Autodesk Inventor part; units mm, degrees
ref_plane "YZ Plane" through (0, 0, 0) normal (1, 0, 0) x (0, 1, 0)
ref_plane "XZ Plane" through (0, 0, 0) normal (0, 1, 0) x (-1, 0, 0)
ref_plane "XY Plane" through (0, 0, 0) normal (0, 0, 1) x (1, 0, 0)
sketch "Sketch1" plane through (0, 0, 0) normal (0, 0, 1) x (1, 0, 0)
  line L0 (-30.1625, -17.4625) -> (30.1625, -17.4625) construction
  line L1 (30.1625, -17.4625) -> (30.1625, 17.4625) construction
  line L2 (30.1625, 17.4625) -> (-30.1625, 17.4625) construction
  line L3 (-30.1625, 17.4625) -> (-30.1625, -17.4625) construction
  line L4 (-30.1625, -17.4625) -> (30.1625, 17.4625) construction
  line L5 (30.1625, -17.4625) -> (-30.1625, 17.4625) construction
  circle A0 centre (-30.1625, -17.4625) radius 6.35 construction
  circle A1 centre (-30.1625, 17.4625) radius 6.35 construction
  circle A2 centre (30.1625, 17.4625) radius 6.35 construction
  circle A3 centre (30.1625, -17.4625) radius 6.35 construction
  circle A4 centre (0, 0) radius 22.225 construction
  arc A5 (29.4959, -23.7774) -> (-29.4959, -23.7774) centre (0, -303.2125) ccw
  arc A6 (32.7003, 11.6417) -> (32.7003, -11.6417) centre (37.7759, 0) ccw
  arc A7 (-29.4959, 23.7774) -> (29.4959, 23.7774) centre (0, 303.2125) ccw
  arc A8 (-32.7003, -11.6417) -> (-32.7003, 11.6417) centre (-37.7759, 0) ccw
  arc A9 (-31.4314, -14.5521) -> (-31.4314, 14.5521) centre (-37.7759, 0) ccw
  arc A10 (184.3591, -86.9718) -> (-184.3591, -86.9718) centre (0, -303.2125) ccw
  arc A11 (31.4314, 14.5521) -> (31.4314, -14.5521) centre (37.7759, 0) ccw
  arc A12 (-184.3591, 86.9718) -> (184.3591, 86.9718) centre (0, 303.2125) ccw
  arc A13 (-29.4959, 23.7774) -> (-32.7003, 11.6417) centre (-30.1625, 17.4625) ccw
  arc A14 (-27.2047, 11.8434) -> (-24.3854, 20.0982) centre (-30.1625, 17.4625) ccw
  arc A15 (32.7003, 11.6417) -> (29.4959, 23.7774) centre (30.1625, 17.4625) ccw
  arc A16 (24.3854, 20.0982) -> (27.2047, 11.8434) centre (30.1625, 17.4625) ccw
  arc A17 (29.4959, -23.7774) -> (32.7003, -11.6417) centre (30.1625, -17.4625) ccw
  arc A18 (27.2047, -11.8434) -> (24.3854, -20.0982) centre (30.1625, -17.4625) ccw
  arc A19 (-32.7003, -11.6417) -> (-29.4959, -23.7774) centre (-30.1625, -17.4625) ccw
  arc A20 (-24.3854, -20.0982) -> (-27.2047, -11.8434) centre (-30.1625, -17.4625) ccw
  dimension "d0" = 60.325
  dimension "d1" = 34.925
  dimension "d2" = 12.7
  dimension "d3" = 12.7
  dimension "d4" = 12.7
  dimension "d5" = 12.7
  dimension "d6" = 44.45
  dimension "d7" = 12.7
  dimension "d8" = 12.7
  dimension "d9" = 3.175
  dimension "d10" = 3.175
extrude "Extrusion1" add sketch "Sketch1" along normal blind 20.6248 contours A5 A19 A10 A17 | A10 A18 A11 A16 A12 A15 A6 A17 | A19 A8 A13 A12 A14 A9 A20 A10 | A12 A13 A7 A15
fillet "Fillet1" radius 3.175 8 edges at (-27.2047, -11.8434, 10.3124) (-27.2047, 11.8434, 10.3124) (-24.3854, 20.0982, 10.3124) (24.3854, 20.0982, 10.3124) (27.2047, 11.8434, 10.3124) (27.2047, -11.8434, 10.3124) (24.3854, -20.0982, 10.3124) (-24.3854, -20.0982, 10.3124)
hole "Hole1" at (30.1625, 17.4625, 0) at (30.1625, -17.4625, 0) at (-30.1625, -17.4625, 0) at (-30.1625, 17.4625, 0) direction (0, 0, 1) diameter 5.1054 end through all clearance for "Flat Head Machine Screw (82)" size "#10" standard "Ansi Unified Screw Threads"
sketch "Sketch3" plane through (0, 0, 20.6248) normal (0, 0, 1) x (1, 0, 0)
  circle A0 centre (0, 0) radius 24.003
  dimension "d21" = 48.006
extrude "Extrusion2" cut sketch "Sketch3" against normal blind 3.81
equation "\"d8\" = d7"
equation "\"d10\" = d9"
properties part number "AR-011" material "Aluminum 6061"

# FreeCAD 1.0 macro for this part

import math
import FreeCAD as App
import Part
import Sketcher
from FreeCAD import Vector
Q = App.Units.Quantity


def edges_at(feature, points):
    """Names of the edges that pass closest to the given points."""
    edges = feature.Shape.Edges
    near = lambda p: min(range(len(edges)), key=lambda i: edges[i].distToShape(Part.Vertex(*p))[0])
    return sorted({f"Edge{near(p) + 1}" for p in points})

doc = App.newDocument("Part")
body = doc.addObject("PartDesign::Body", "Body")

# Sketch on XY plane
sketch1 = body.newObject("Sketcher::SketchObject", "Sketch")
sketch1.AttachmentSupport = (doc.getObject("XY_Plane"), [""])
sketch1.MapMode = "FlatFace"
sketch1.addGeometry(Part.ArcOfCircle(Part.Circle(Vector(0, -303, 0), Vector(0, 0, 1), 281), math.radians(83.97), math.radians(96.03)), False)
sketch1.addGeometry(Part.ArcOfCircle(Part.Circle(Vector(30, -17, 0), Vector(0, 0, 1), 6), math.radians(-96), math.radians(66)), False)
sketch1.addGeometry(Part.ArcOfCircle(Part.Circle(Vector(38, 0, 0), Vector(0, 0, 1), 13), math.radians(114), math.radians(246)), False)
sketch1.addGeometry(Part.ArcOfCircle(Part.Circle(Vector(30, 17, 0), Vector(0, 0, 1), 6), math.radians(-66), math.radians(96)), False)
sketch1.addGeometry(Part.ArcOfCircle(Part.Circle(Vector(0, 303, 0), Vector(0, 0, 1), 281), math.radians(-96.03), math.radians(-83.97)), False)
sketch1.addGeometry(Part.ArcOfCircle(Part.Circle(Vector(-30, 17, 0), Vector(0, 0, 1), 6), math.radians(84), math.radians(246)), False)
sketch1.addGeometry(Part.ArcOfCircle(Part.Circle(Vector(-38, 0, 0), Vector(0, 0, 1), 13), math.radians(-66), math.radians(66)), False)
sketch1.addGeometry(Part.ArcOfCircle(Part.Circle(Vector(-30, -17, 0), Vector(0, 0, 1), 6), math.radians(114), math.radians(276)), False)
sketch1.addGeometry(Part.ArcOfCircle(Part.Circle(Vector(0, -303, 0), Vector(0, 0, 1), 284), math.radians(85.08), math.radians(94.92)), False)
sketch1.addGeometry(Part.ArcOfCircle(Part.Circle(Vector(-30, -17, 0), Vector(0, 0, 1), 6), math.radians(-25), math.radians(62)), False)
sketch1.addGeometry(Part.ArcOfCircle(Part.Circle(Vector(-38, 0, 0), Vector(0, 0, 1), 16), math.radians(-48), math.radians(48)), False)
sketch1.addGeometry(Part.ArcOfCircle(Part.Circle(Vector(-30, 17, 0), Vector(0, 0, 1), 6), math.radians(-62), math.radians(25)), False)
sketch1.addGeometry(Part.ArcOfCircle(Part.Circle(Vector(0, 303, 0), Vector(0, 0, 1), 284), math.radians(-94.92), math.radians(-85.08)), False)
sketch1.addGeometry(Part.ArcOfCircle(Part.Circle(Vector(30, 17, 0), Vector(0, 0, 1), 6), math.radians(155), math.radians(242)), False)
sketch1.addGeometry(Part.ArcOfCircle(Part.Circle(Vector(38, 0, 0), Vector(0, 0, 1), 16), math.radians(132), math.radians(228)), False)
sketch1.addGeometry(Part.ArcOfCircle(Part.Circle(Vector(30, -17, 0), Vector(0, 0, 1), 6), math.radians(118), math.radians(205)), False)
sketch1.addConstraint(Sketcher.Constraint("Tangent", 0, 1, 1, 1))
sketch1.addConstraint(Sketcher.Constraint("Tangent", 1, 2, 2, 2))
sketch1.addConstraint(Sketcher.Constraint("Tangent", 2, 1, 3, 1))
sketch1.addConstraint(Sketcher.Constraint("Tangent", 3, 2, 4, 2))
sketch1.addConstraint(Sketcher.Constraint("Tangent", 4, 1, 5, 1))
sketch1.addConstraint(Sketcher.Constraint("Tangent", 5, 2, 6, 2))
sketch1.addConstraint(Sketcher.Constraint("Tangent", 6, 1, 7, 1))
sketch1.addConstraint(Sketcher.Constraint("Tangent", 7, 2, 0, 2))
sketch1.addConstraint(Sketcher.Constraint("Coincident", 8, 2, 9, 1))
sketch1.addConstraint(Sketcher.Constraint("Coincident", 9, 2, 10, 1))
sketch1.addConstraint(Sketcher.Constraint("Coincident", 10, 2, 11, 1))
sketch1.addConstraint(Sketcher.Constraint("Coincident", 11, 2, 12, 1))
sketch1.addConstraint(Sketcher.Constraint("Coincident", 12, 2, 13, 1))
sketch1.addConstraint(Sketcher.Constraint("Coincident", 13, 2, 14, 1))
sketch1.addConstraint(Sketcher.Constraint("Coincident", 14, 2, 15, 1))
sketch1.addConstraint(Sketcher.Constraint("Coincident", 15, 2, 8, 1))
sketch1.addConstraint(Sketcher.Constraint("Coincident", 8, 3, 0, 3))
sketch1.addConstraint(Sketcher.Constraint("Coincident", 9, 3, 7, 3))
sketch1.addConstraint(Sketcher.Constraint("Coincident", 10, 3, 6, 3))
sketch1.addConstraint(Sketcher.Constraint("Coincident", 11, 3, 5, 3))
sketch1.addConstraint(Sketcher.Constraint("Coincident", 12, 3, 4, 3))
sketch1.addConstraint(Sketcher.Constraint("Coincident", 13, 3, 3, 3))
sketch1.addConstraint(Sketcher.Constraint("Coincident", 14, 3, 2, 3))
sketch1.addConstraint(Sketcher.Constraint("Coincident", 15, 3, 1, 3))
sketch1.addConstraint(Sketcher.Constraint("Equal", 1, 3))
sketch1.addConstraint(Sketcher.Constraint("Equal", 0, 4))
sketch1.addConstraint(Sketcher.Constraint("Equal", 3, 5))
sketch1.addConstraint(Sketcher.Constraint("Equal", 2, 6))
sketch1.addConstraint(Sketcher.Constraint("Equal", 5, 7))
sketch1.addConstraint(Sketcher.Constraint("Equal", 7, 9))
sketch1.addConstraint(Sketcher.Constraint("Equal", 9, 11))
sketch1.addConstraint(Sketcher.Constraint("Equal", 8, 12))
sketch1.addConstraint(Sketcher.Constraint("Equal", 11, 13))
sketch1.addConstraint(Sketcher.Constraint("Equal", 10, 14))
sketch1.addConstraint(Sketcher.Constraint("Equal", 13, 15))
sketch1.addConstraint(Sketcher.Constraint("Symmetric", 0, 3, 4, 3, -1, 1))
sketch1.addConstraint(Sketcher.Constraint("Symmetric", 2, 3, 6, 3, -1, 1))
sketch1.addConstraint(Sketcher.Constraint("Symmetric", 3, 3, 5, 3, -2))
sketch1.addConstraint(Sketcher.Constraint("Radius", 2, Q("0.5 in")))
sketch1.addConstraint(Sketcher.Constraint("Radius", 1, Q("0.25 in")))
sketch1.addConstraint(Sketcher.Constraint("Radius", 0, Q("11.0625 in")))
sketch1.addConstraint(Sketcher.Constraint("Radius", 8, Q("11.1875 in")))
sketch1.addConstraint(Sketcher.Constraint("Radius", 10, Q("0.625 in")))
sketch1.addConstraint(Sketcher.Constraint("DistanceY", 1, 3, 3, 3, Q("1.375 in")))
sketch1.addConstraint(Sketcher.Constraint("DistanceX", 5, 3, 3, 3, Q("2.375 in")))
pad1 = body.newObject("PartDesign::Pad", "Pad")
pad1.Profile = sketch1
pad1.Length = Q("0.812 in")
doc.recompute()

fillet = body.newObject("PartDesign::Fillet", "Fillet")
fillet.Base = (pad1, edges_at(pad1, [
    (-27.205, -11.843, 10.312),
    (-27.205, 11.843, 10.312),
    (-24.385, 20.098, 10.312),
    (24.385, 20.098, 10.312),
    (27.205, 11.843, 10.312),
    (27.205, -11.843, 10.312),
    (24.385, -20.098, 10.312),
    (-24.385, -20.098, 10.312),
]))
fillet.Radius = Q("0.125 in")

# Sketch on XY plane
sketch2 = body.newObject("Sketcher::SketchObject", "Sketch001")
sketch2.AttachmentSupport = (doc.getObject("XY_Plane"), [""])
sketch2.MapMode = "FlatFace"
sketch2.addGeometry(Part.Circle(Vector(30.2, 17.5, 0), Vector(0, 0, 1), 2.6), False)
sketch2.addGeometry(Part.Circle(Vector(30.2, -17.5, 0), Vector(0, 0, 1), 2.6), False)
sketch2.addGeometry(Part.Circle(Vector(-30.2, -17.5, 0), Vector(0, 0, 1), 2.6), False)
sketch2.addGeometry(Part.Circle(Vector(-30.2, 17.5, 0), Vector(0, 0, 1), 2.6), False)
sketch2.addConstraint(Sketcher.Constraint("Equal", 0, 1))
sketch2.addConstraint(Sketcher.Constraint("Equal", 1, 2))
sketch2.addConstraint(Sketcher.Constraint("Equal", 2, 3))
sketch2.addConstraint(Sketcher.Constraint("Symmetric", 0, 3, 2, 3, -1, 1))
sketch2.addConstraint(Sketcher.Constraint("Symmetric", 1, 3, 3, 3, -1, 1))
sketch2.addConstraint(Sketcher.Constraint("Symmetric", 1, 3, 2, 3, -2))
sketch2.addConstraint(Sketcher.Constraint("Diameter", 0, Q("0.201 in")))
sketch2.addConstraint(Sketcher.Constraint("DistanceX", -1, 1, 0, 3, Q("1.1875 in")))
sketch2.addConstraint(Sketcher.Constraint("DistanceY", -1, 1, 0, 3, Q("0.6875 in")))
doc.recompute()
hole = body.newObject("PartDesign::Hole", "Hole")
hole.Profile = sketch2
hole.ThreadType = "None"
hole.Diameter = Q("0.201 in")
hole.DepthType = "ThroughAll"
hole.Reversed = True

# Sketch on XY plane
sketch3 = body.newObject("Sketcher::SketchObject", "Sketch002")
sketch3.AttachmentSupport = (doc.getObject("XY_Plane"), [""])
sketch3.MapMode = "FlatFace"
sketch3.AttachmentOffset = App.Placement(Vector(0, 0, 0.812 * 25.4), App.Rotation())
sketch3.addGeometry(Part.Circle(Vector(0, 0, 0), Vector(0, 0, 1), 24), False)
sketch3.addConstraint(Sketcher.Constraint("Coincident", 0, 3, -1, 1))
sketch3.addConstraint(Sketcher.Constraint("Diameter", 0, Q("1.89 in")))
pocket1 = body.newObject("PartDesign::Pocket", "Pocket")
pocket1.Profile = sketch3
pocket1.Length = Q("0.15 in")

doc.recompute()
